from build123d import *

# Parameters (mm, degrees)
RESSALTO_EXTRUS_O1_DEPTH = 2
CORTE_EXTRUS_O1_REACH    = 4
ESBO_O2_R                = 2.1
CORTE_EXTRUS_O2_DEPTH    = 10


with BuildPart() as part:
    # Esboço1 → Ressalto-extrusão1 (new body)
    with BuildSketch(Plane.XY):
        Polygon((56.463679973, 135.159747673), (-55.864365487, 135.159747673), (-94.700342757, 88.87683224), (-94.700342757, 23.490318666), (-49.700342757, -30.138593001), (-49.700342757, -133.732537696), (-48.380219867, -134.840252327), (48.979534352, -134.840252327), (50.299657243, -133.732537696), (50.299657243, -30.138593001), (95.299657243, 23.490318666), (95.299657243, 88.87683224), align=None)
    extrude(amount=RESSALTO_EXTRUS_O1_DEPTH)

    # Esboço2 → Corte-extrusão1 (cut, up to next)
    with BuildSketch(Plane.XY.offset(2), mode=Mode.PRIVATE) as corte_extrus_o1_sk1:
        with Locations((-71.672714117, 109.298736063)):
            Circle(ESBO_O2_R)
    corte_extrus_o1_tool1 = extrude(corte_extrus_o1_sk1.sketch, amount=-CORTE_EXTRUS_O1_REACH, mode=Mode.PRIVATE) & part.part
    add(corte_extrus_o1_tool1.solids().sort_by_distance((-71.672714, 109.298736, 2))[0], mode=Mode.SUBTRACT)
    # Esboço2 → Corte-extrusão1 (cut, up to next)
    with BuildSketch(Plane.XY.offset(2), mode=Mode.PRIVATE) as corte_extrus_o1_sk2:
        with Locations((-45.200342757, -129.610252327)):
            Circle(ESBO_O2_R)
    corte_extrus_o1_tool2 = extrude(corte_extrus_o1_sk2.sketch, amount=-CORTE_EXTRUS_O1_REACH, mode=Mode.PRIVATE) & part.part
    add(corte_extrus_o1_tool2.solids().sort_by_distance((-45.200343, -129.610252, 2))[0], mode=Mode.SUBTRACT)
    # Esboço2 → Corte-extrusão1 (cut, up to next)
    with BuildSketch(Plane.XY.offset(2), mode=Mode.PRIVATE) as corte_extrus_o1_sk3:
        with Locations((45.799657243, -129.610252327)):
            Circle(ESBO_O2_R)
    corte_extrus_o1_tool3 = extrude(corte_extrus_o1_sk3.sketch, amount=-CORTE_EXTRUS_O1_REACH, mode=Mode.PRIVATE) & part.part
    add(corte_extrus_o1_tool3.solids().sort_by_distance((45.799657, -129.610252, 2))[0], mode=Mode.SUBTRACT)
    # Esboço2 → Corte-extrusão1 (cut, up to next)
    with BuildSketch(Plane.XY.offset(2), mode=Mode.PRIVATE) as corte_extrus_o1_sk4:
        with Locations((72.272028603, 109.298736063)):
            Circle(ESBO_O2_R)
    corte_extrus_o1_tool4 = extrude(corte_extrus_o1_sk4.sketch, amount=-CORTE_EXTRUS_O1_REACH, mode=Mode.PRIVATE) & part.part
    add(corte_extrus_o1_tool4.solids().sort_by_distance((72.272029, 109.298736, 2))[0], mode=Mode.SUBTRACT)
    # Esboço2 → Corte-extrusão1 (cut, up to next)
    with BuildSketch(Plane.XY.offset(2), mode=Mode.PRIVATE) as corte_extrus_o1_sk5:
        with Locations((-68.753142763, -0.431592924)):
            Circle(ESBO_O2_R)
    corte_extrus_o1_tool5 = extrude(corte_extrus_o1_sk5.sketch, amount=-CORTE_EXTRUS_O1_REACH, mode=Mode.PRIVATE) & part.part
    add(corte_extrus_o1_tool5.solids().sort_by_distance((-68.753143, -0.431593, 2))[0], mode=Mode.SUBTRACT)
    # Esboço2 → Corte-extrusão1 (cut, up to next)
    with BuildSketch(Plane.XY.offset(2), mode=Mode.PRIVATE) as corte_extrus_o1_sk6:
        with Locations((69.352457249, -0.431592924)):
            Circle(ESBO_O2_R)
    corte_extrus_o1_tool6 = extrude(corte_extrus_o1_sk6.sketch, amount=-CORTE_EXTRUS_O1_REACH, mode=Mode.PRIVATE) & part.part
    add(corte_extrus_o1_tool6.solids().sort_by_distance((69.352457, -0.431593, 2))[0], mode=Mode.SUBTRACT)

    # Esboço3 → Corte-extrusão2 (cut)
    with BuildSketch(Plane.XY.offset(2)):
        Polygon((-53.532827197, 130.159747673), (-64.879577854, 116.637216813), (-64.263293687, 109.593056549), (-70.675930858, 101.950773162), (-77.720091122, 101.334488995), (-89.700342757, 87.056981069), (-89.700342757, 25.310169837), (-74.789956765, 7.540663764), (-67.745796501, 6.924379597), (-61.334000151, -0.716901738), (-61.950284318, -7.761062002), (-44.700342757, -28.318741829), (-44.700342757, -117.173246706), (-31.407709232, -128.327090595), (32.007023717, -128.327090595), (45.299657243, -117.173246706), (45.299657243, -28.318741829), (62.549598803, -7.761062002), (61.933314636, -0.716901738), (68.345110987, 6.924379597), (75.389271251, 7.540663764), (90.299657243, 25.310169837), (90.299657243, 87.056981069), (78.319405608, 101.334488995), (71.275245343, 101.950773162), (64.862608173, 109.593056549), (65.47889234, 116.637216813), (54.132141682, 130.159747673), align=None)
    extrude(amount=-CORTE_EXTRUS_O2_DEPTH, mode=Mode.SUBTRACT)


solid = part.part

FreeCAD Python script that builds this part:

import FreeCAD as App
import Part
import Sketcher
Q = App.Units.Quantity

doc = App.newDocument("Part")
body = doc.addObject("PartDesign::Body", "Body")

sketch1 = doc.addObject("Sketcher::SketchObject", "Sketch")
body.addObject(sketch1)
sketch1.AttachmentSupport = (doc.XY_Plane, [""])
sketch1.MapMode = "FlatFace"
sketch1.addGeometry(Part.LineSegment(App.Vector(56.46368, 135.159748, 0), App.Vector(-55.864365, 135.159748, 0)), False)
sketch1.addGeometry(Part.LineSegment(App.Vector(-55.864365, 135.159748, 0), App.Vector(-94.700343, 88.876832, 0)), False)
sketch1.addGeometry(Part.LineSegment(App.Vector(-94.700343, 88.876832, 0), App.Vector(-94.700343, 23.490319, 0)), False)
sketch1.addGeometry(Part.LineSegment(App.Vector(-94.700343, 23.490319, 0), App.Vector(-49.700343, -30.138593, 0)), False)
sketch1.addGeometry(Part.LineSegment(App.Vector(-49.700343, -30.138593, 0), App.Vector(-49.700343, -133.732538, 0)), False)
sketch1.addGeometry(Part.LineSegment(App.Vector(-49.700343, -133.732538, 0), App.Vector(-48.38022, -134.840252, 0)), False)
sketch1.addGeometry(Part.LineSegment(App.Vector(-48.38022, -134.840252, 0), App.Vector(48.979534, -134.840252, 0)), False)
sketch1.addGeometry(Part.LineSegment(App.Vector(48.979534, -134.840252, 0), App.Vector(50.299657, -133.732538, 0)), False)
sketch1.addGeometry(Part.LineSegment(App.Vector(50.299657, -133.732538, 0), App.Vector(50.299657, -30.138593, 0)), False)
sketch1.addGeometry(Part.LineSegment(App.Vector(50.299657, -30.138593, 0), App.Vector(95.299657, 23.490319, 0)), False)
sketch1.addGeometry(Part.LineSegment(App.Vector(95.299657, 23.490319, 0), App.Vector(95.299657, 88.876832, 0)), False)
sketch1.addGeometry(Part.LineSegment(App.Vector(95.299657, 88.876832, 0), App.Vector(56.46368, 135.159748, 0)), False)
sketch1.addConstraint(Sketcher.Constraint("Coincident", 0, 2, 1, 1))
sketch1.addConstraint(Sketcher.Constraint("Coincident", 1, 2, 2, 1))
sketch1.addConstraint(Sketcher.Constraint("Coincident", 2, 2, 3, 1))
sketch1.addConstraint(Sketcher.Constraint("Coincident", 3, 2, 4, 1))
sketch1.addConstraint(Sketcher.Constraint("Coincident", 4, 2, 5, 1))
sketch1.addConstraint(Sketcher.Constraint("Coincident", 5, 2, 6, 1))
sketch1.addConstraint(Sketcher.Constraint("Coincident", 6, 2, 7, 1))
sketch1.addConstraint(Sketcher.Constraint("Coincident", 7, 2, 8, 1))
sketch1.addConstraint(Sketcher.Constraint("Coincident", 8, 2, 9, 1))
sketch1.addConstraint(Sketcher.Constraint("Coincident", 9, 2, 10, 1))
sketch1.addConstraint(Sketcher.Constraint("Coincident", 10, 2, 11, 1))
sketch1.addConstraint(Sketcher.Constraint("Coincident", 11, 2, 0, 1))
sketch1.addConstraint(Sketcher.Constraint("Horizontal", 0))
sketch1.addConstraint(Sketcher.Constraint("Vertical", 2))
sketch1.addConstraint(Sketcher.Constraint("Vertical", 4))
sketch1.addConstraint(Sketcher.Constraint("Horizontal", 6))
sketch1.addConstraint(Sketcher.Constraint("Vertical", 8))
sketch1.addConstraint(Sketcher.Constraint("Vertical", 10))
sketch1.addConstraint(Sketcher.Constraint("Perpendicular", 1, 5))
sketch1.addConstraint(Sketcher.Constraint("Perpendicular", 3, 7))
sketch1.addConstraint(Sketcher.Constraint("Perpendicular", 5, 9))
sketch1.addConstraint(Sketcher.Constraint("Perpendicular", 7, 11))
sketch1.addConstraint(Sketcher.Constraint("Horizontal", 4, 2, 7, 2))
sketch1.addConstraint(Sketcher.Constraint("Horizontal", 3, 2, 8, 2))
sketch1.addConstraint(Sketcher.Constraint("Horizontal", 2, 2, 9, 2))
sketch1.addConstraint(Sketcher.Constraint("Horizontal", 1, 2, 10, 2))
sketch1.addConstraint(Sketcher.Constraint("Equal", 5, 7))
sketch1.addConstraint(Sketcher.Constraint("Angle", 1, Q("-130 deg")))
sketch1.addConstraint(Sketcher.Constraint("DistanceX", 2, 2, 3, 2, 45.0))
sketch1.addConstraint(Sketcher.Constraint("DistanceY", 5, 2, 0, 2, 270.0))
sketch1.addConstraint(Sketcher.Constraint("DistanceX", 4, 2, 7, 2, 100.0))
sketch1.addConstraint(Sketcher.Constraint("Distance", 5, 1.723298))
sketch1.addConstraint(Sketcher.Constraint("DistanceX", 0, 2, 0, 1, 112.328045))
sketch1.addConstraint(Sketcher.Constraint("DistanceY", 2, 2, 2, 1, 65.386514))
sketch1.addConstraint(Sketcher.Constraint("DistanceY", -1, 1, 2, 2, 23.490319))
sketch1.addConstraint(Sketcher.Constraint("DistanceX", 5, 2, -1, 1, 48.38022))
pad1 = doc.addObject("PartDesign::Pad", "Pad")
body.addObject(pad1)
pad1.Profile = sketch1
pad1.Length = 2

sketch2 = doc.addObject("Sketcher::SketchObject", "Sketch001")
body.addObject(sketch2)
sketch2.AttachmentSupport = (doc.XY_Plane, [""])
sketch2.MapMode = "FlatFace"
sketch2.AttachmentOffset = App.Placement(App.Vector(0, 0, 2), App.Rotation())
sketch2.addGeometry(Part.Circle(App.Vector(-71.672714, 109.298736, 0), App.Vector(0, 0, 1), 2.1), False)
sketch2.addConstraint(Sketcher.Constraint("Diameter", 0, 4.2))
sketch2.addConstraint(Sketcher.Constraint("DistanceX", 0, 3, -1, 1, 71.672714))
sketch2.addConstraint(Sketcher.Constraint("DistanceY", -1, 1, 0, 3, 109.298736))
pocket1 = doc.addObject("PartDesign::Pocket", "Pocket")
body.addObject(pocket1)
pocket1.Profile = sketch2
pocket1.Type = "UpToFirst"

sketch3 = doc.addObject("Sketcher::SketchObject", "Sketch002")
body.addObject(sketch3)
sketch3.AttachmentSupport = (doc.XY_Plane, [""])
sketch3.MapMode = "FlatFace"
sketch3.AttachmentOffset = App.Placement(App.Vector(0, 0, 2), App.Rotation())
sketch3.addGeometry(Part.Circle(App.Vector(-45.200343, -129.610252, 0), App.Vector(0, 0, 1), 2.1), False)
sketch3.addConstraint(Sketcher.Constraint("Diameter", 0, 4.2))
sketch3.addConstraint(Sketcher.Constraint("DistanceX", 0, 3, -1, 1, 45.200343))
sketch3.addConstraint(Sketcher.Constraint("DistanceY", 0, 3, -1, 1, 129.610252))
pocket2 = doc.addObject("PartDesign::Pocket", "Pocket001")
body.addObject(pocket2)
pocket2.Profile = sketch3
pocket2.Type = "UpToFirst"

sketch4 = doc.addObject("Sketcher::SketchObject", "Sketch003")
body.addObject(sketch4)
sketch4.AttachmentSupport = (doc.XY_Plane, [""])
sketch4.MapMode = "FlatFace"
sketch4.AttachmentOffset = App.Placement(App.Vector(0, 0, 2), App.Rotation())
sketch4.addGeometry(Part.Circle(App.Vector(45.799657, -129.610252, 0), App.Vector(0, 0, 1), 2.1), False)
sketch4.addConstraint(Sketcher.Constraint("Diameter", 0, 4.2))
sketch4.addConstraint(Sketcher.Constraint("DistanceX", -1, 1, 0, 3, 45.799657))
sketch4.addConstraint(Sketcher.Constraint("DistanceY", 0, 3, -1, 1, 129.610252))
pocket3 = doc.addObject("PartDesign::Pocket", "Pocket002")
body.addObject(pocket3)
pocket3.Profile = sketch4
pocket3.Type = "UpToFirst"

sketch5 = doc.addObject("Sketcher::SketchObject", "Sketch004")
body.addObject(sketch5)
sketch5.AttachmentSupport = (doc.XY_Plane, [""])
sketch5.MapMode = "FlatFace"
sketch5.AttachmentOffset = App.Placement(App.Vector(0, 0, 2), App.Rotation())
sketch5.addGeometry(Part.Circle(App.Vector(72.272029, 109.298736, 0), App.Vector(0, 0, 1), 2.1), False)
sketch5.addConstraint(Sketcher.Constraint("Diameter", 0, 4.2))
sketch5.addConstraint(Sketcher.Constraint("DistanceX", -1, 1, 0, 3, 72.272029))
sketch5.addConstraint(Sketcher.Constraint("DistanceY", -1, 1, 0, 3, 109.298736))
pocket4 = doc.addObject("PartDesign::Pocket", "Pocket003")
body.addObject(pocket4)
pocket4.Profile = sketch5
pocket4.Type = "UpToFirst"

sketch6 = doc.addObject("Sketcher::SketchObject", "Sketch005")
body.addObject(sketch6)
sketch6.AttachmentSupport = (doc.XY_Plane, [""])
sketch6.MapMode = "FlatFace"
sketch6.AttachmentOffset = App.Placement(App.Vector(0, 0, 2), App.Rotation())
sketch6.addGeometry(Part.Circle(App.Vector(-68.753143, -0.431593, 0), App.Vector(0, 0, 1), 2.1), False)
sketch6.addConstraint(Sketcher.Constraint("Diameter", 0, 4.2))
sketch6.addConstraint(Sketcher.Constraint("DistanceX", 0, 3, -1, 1, 68.753143))
sketch6.addConstraint(Sketcher.Constraint("DistanceY", 0, 3, -1, 1, 0.431593))
pocket5 = doc.addObject("PartDesign::Pocket", "Pocket004")
body.addObject(pocket5)
pocket5.Profile = sketch6
pocket5.Type = "UpToFirst"

sketch7 = doc.addObject("Sketcher::SketchObject", "Sketch006")
body.addObject(sketch7)
sketch7.AttachmentSupport = (doc.XY_Plane, [""])
sketch7.MapMode = "FlatFace"
sketch7.AttachmentOffset = App.Placement(App.Vector(0, 0, 2), App.Rotation())
sketch7.addGeometry(Part.Circle(App.Vector(69.352457, -0.431593, 0), App.Vector(0, 0, 1), 2.1), False)
sketch7.addConstraint(Sketcher.Constraint("Diameter", 0, 4.2))
sketch7.addConstraint(Sketcher.Constraint("DistanceX", -1, 1, 0, 3, 69.352457))
sketch7.addConstraint(Sketcher.Constraint("DistanceY", 0, 3, -1, 1, 0.431593))
pocket6 = doc.addObject("PartDesign::Pocket", "Pocket005")
body.addObject(pocket6)
pocket6.Profile = sketch7
pocket6.Type = "UpToFirst"

sketch8 = doc.addObject("Sketcher::SketchObject", "Sketch007")
body.addObject(sketch8)
sketch8.AttachmentSupport = (doc.XY_Plane, [""])
sketch8.MapMode = "FlatFace"
sketch8.AttachmentOffset = App.Placement(App.Vector(0, 0, 2), App.Rotation())
sketch8.addGeometry(Part.LineSegment(App.Vector(-53.532827, 130.159748, 0), App.Vector(-64.879578, 116.637217, 0)), False)
sketch8.addGeometry(Part.LineSegment(App.Vector(-64.879578, 116.637217, 0), App.Vector(-64.263294, 109.593057, 0)), False)
sketch8.addGeometry(Part.LineSegment(App.Vector(-64.263294, 109.593057, 0), App.Vector(-70.675931, 101.950773, 0)), False)
sketch8.addGeometry(Part.LineSegment(App.Vector(-70.675931, 101.950773, 0), App.Vector(-77.720091, 101.334489, 0)), False)
sketch8.addGeometry(Part.LineSegment(App.Vector(-77.720091, 101.334489, 0), App.Vector(-89.700343, 87.056981, 0)), False)
sketch8.addGeometry(Part.LineSegment(App.Vector(-89.700343, 87.056981, 0), App.Vector(-89.700343, 25.31017, 0)), False)
sketch8.addGeometry(Part.LineSegment(App.Vector(-89.700343, 25.31017, 0), App.Vector(-74.789957, 7.540664, 0)), False)
sketch8.addGeometry(Part.LineSegment(App.Vector(-74.789957, 7.540664, 0), App.Vector(-67.745797, 6.92438, 0)), False)
sketch8.addGeometry(Part.LineSegment(App.Vector(-67.745797, 6.92438, 0), App.Vector(-61.334, -0.716902, 0)), False)
sketch8.addGeometry(Part.LineSegment(App.Vector(-61.334, -0.716902, 0), App.Vector(-61.950284, -7.761062, 0)), False)
sketch8.addGeometry(Part.LineSegment(App.Vector(-61.950284, -7.761062, 0), App.Vector(-44.700343, -28.318742, 0)), False)
sketch8.addGeometry(Part.LineSegment(App.Vector(-44.700343, -28.318742, 0), App.Vector(-44.700343, -117.173247, 0)), False)
sketch8.addGeometry(Part.LineSegment(App.Vector(-44.700343, -117.173247, 0), App.Vector(-31.407709, -128.327091, 0)), False)
sketch8.addGeometry(Part.LineSegment(App.Vector(-31.407709, -128.327091, 0), App.Vector(32.007024, -128.327091, 0)), False)
sketch8.addGeometry(Part.LineSegment(App.Vector(32.007024, -128.327091, 0), App.Vector(45.299657, -117.173247, 0)), False)
sketch8.addGeometry(Part.LineSegment(App.Vector(45.299657, -117.173247, 0), App.Vector(45.299657, -28.318742, 0)), False)
sketch8.addGeometry(Part.LineSegment(App.Vector(45.299657, -28.318742, 0), App.Vector(62.549599, -7.761062, 0)), False)
sketch8.addGeometry(Part.LineSegment(App.Vector(62.549599, -7.761062, 0), App.Vector(61.933315, -0.716902, 0)), False)
sketch8.addGeometry(Part.LineSegment(App.Vector(61.933315, -0.716902, 0), App.Vector(68.345111, 6.92438, 0)), False)
sketch8.addGeometry(Part.LineSegment(App.Vector(68.345111, 6.92438, 0), App.Vector(75.389271, 7.540664, 0)), False)
sketch8.addGeometry(Part.LineSegment(App.Vector(75.389271, 7.540664, 0), App.Vector(90.299657, 25.31017, 0)), False)
sketch8.addGeometry(Part.LineSegment(App.Vector(90.299657, 25.31017, 0), App.Vector(90.299657, 87.056981, 0)), False)
sketch8.addGeometry(Part.LineSegment(App.Vector(90.299657, 87.056981, 0), App.Vector(78.319406, 101.334489, 0)), False)
sketch8.addGeometry(Part.LineSegment(App.Vector(78.319406, 101.334489, 0), App.Vector(71.275245, 101.950773, 0)), False)
sketch8.addGeometry(Part.LineSegment(App.Vector(71.275245, 101.950773, 0), App.Vector(64.862608, 109.593057, 0)), False)
sketch8.addGeometry(Part.LineSegment(App.Vector(64.862608, 109.593057, 0), App.Vector(65.478892, 116.637217, 0)), False)
sketch8.addGeometry(Part.LineSegment(App.Vector(65.478892, 116.637217, 0), App.Vector(54.132142, 130.159748, 0)), False)
sketch8.addGeometry(Part.LineSegment(App.Vector(54.132142, 130.159748, 0), App.Vector(-53.532827, 130.159748, 0)), False)
sketch8.addConstraint(Sketcher.Constraint("Coincident", 0, 2, 1, 1))
sketch8.addConstraint(Sketcher.Constraint("Coincident", 1, 2, 2, 1))
sketch8.addConstraint(Sketcher.Constraint("Coincident", 2, 2, 3, 1))
sketch8.addConstraint(Sketcher.Constraint("Coincident", 3, 2, 4, 1))
sketch8.addConstraint(Sketcher.Constraint("Coincident", 4, 2, 5, 1))
sketch8.addConstraint(Sketcher.Constraint("Coincident", 5, 2, 6, 1))
sketch8.addConstraint(Sketcher.Constraint("Coincident", 6, 2, 7, 1))
sketch8.addConstraint(Sketcher.Constraint("Coincident", 7, 2, 8, 1))
sketch8.addConstraint(Sketcher.Constraint("Coincident", 8, 2, 9, 1))
sketch8.addConstraint(Sketcher.Constraint("Coincident", 9, 2, 10, 1))
sketch8.addConstraint(Sketcher.Constraint("Coincident", 10, 2, 11, 1))
sketch8.addConstraint(Sketcher.Constraint("Coincident", 11, 2, 12, 1))
sketch8.addConstraint(Sketcher.Constraint("Coincident", 12, 2, 13, 1))
sketch8.addConstraint(Sketcher.Constraint("Coincident", 13, 2, 14, 1))
sketch8.addConstraint(Sketcher.Constraint("Coincident", 14, 2, 15, 1))
sketch8.addConstraint(Sketcher.Constraint("Coincident", 15, 2, 16, 1))
sketch8.addConstraint(Sketcher.Constraint("Coincident", 16, 2, 17, 1))
sketch8.addConstraint(Sketcher.Constraint("Coincident", 17, 2, 18, 1))
sketch8.addConstraint(Sketcher.Constraint("Coincident", 18, 2, 19, 1))
sketch8.addConstraint(Sketcher.Constraint("Coincident", 19, 2, 20, 1))
sketch8.addConstraint(Sketcher.Constraint("Coincident", 20, 2, 21, 1))
sketch8.addConstraint(Sketcher.Constraint("Coincident", 21, 2, 22, 1))
sketch8.addConstraint(Sketcher.Constraint("Coincident", 22, 2, 23, 1))
sketch8.addConstraint(Sketcher.Constraint("Coincident", 23, 2, 24, 1))
sketch8.addConstraint(Sketcher.Constraint("Coincident", 24, 2, 25, 1))
sketch8.addConstraint(Sketcher.Constraint("Coincident", 25, 2, 26, 1))
sketch8.addConstraint(Sketcher.Constraint("Coincident", 26, 2, 27, 1))
sketch8.addConstraint(Sketcher.Constraint("Coincident", 27, 2, 0, 1))
sketch8.addConstraint(Sketcher.Constraint("Vertical", 5))
sketch8.addConstraint(Sketcher.Constraint("Vertical", 11))
sketch8.addConstraint(Sketcher.Constraint("Horizontal", 13))
sketch8.addConstraint(Sketcher.Constraint("Vertical", 15))
sketch8.addConstraint(Sketcher.Constraint("Vertical", 21))
sketch8.addConstraint(Sketcher.Constraint("Horizontal", 27))
sketch8.addConstraint(Sketcher.Constraint("Parallel", 0, 2))
sketch8.addConstraint(Sketcher.Constraint("Perpendicular", 1, 3))
sketch8.addConstraint(Sketcher.Constraint("Parallel", 2, 4))
sketch8.addConstraint(Sketcher.Constraint("Parallel", 6, 8))
sketch8.addConstraint(Sketcher.Constraint("Perpendicular", 7, 9))
sketch8.addConstraint(Sketcher.Constraint("Parallel", 8, 10))
sketch8.addConstraint(Sketcher.Constraint("Perpendicular", 4, 12))
sketch8.addConstraint(Sketcher.Constraint("Perpendicular", 10, 14))
sketch8.addConstraint(Sketcher.Constraint("Perpendicular", 12, 16))
sketch8.addConstraint(Sketcher.Constraint("Perpendicular", 3, 17))
sketch8.addConstraint(Sketcher.Constraint("Parallel", 16, 18))
sketch8.addConstraint(Sketcher.Constraint("Perpendicular", 17, 19))
sketch8.addConstraint(Sketcher.Constraint("Parallel", 18, 20))
sketch8.addConstraint(Sketcher.Constraint("Perpendicular", 14, 22))
sketch8.addConstraint(Sketcher.Constraint("Perpendicular", 9, 23))
sketch8.addConstraint(Sketcher.Constraint("Parallel", 22, 24))
sketch8.addConstraint(Sketcher.Constraint("Perpendicular", 23, 25))
sketch8.addConstraint(Sketcher.Constraint("Parallel", 24, 26))
sketch8.addConstraint(Sketcher.Constraint("Horizontal", 11, 2, 14, 2))
sketch8.addConstraint(Sketcher.Constraint("Horizontal", 10, 2, 15, 2))
sketch8.addConstraint(Sketcher.Constraint("Horizontal", 9, 2, 16, 2))
sketch8.addConstraint(Sketcher.Constraint("Horizontal", 8, 2, 17, 2))
sketch8.addConstraint(Sketcher.Constraint("Horizontal", 7, 2, 18, 2))
sketch8.addConstraint(Sketcher.Constraint("Horizontal", 6, 2, 19, 2))
sketch8.addConstraint(Sketcher.Constraint("Horizontal", 5, 2, 20, 2))
sketch8.addConstraint(Sketcher.Constraint("Horizontal", 4, 2, 21, 2))
sketch8.addConstraint(Sketcher.Constraint("Horizontal", 3, 2, 22, 2))
sketch8.addConstraint(Sketcher.Constraint("Horizontal", 2, 2, 23, 2))
sketch8.addConstraint(Sketcher.Constraint("Horizontal", 1, 2, 24, 2))
sketch8.addConstraint(Sketcher.Constraint("Horizontal", 0, 2, 25, 2))
sketch8.addConstraint(Sketcher.Constraint("Equal", 1, 3))
sketch8.addConstraint(Sketcher.Constraint("Equal", 3, 7))
sketch8.addConstraint(Sketcher.Constraint("Equal", 7, 9))
sketch8.addConstraint(Sketcher.Constraint("Equal", 12, 14))
sketch8.addConstraint(Sketcher.Constraint("Equal", 17, 19))
sketch8.addConstraint(Sketcher.Constraint("Angle", 0, Q("-130 deg")))
sketch8.addConstraint(Sketcher.Constraint("Angle", 1, Q("-85 deg")))
sketch8.addConstraint(Sketcher.Constraint("DistanceX", 5, 2, 10, 2, 45.0))
sketch8.addConstraint(Sketcher.Constraint("DistanceX", 11, 2, 14, 2, 90.0))
sketch8.addConstraint(Sketcher.Constraint("DistanceX", 8, 2, -1, 1, 61.334))
sketch8.addConstraint(Sketcher.Constraint("Distance", 12, 17.352301))
sketch8.addConstraint(Sketcher.Constraint("DistanceX", 27, 2, 27, 1, 107.664969))
sketch8.addConstraint(Sketcher.Constraint("DistanceY", 5, 2, 5, 1, 61.746811))
sketch8.addConstraint(Sketcher.Constraint("DistanceY", 8, 2, -1, 1, 0.716902))
sketch8.addConstraint(Sketcher.Constraint("DistanceX", -1, 1, 16, 2, 62.549599))
sketch8.addConstraint(Sketcher.Constraint("DistanceY", 7, 2, 4, 2, 80.132601))
sketch8.addConstraint(Sketcher.Constraint("Distance", 0, 17.65241))
sketch8.addConstraint(Sketcher.Constraint("DistanceY", 11, 2, 11, 1, 88.854505))
sketch8.addConstraint(Sketcher.Constraint("DistanceX", 2, 2, -1, 1, 70.675931))
sketch8.addConstraint(Sketcher.Constraint("DistanceX", 3, 2, -1, 1, 77.720091))
pocket7 = doc.addObject("PartDesign::Pocket", "Pocket006")
body.addObject(pocket7)
pocket7.Profile = sketch8
pocket7.Length = 10

doc.recompute()
